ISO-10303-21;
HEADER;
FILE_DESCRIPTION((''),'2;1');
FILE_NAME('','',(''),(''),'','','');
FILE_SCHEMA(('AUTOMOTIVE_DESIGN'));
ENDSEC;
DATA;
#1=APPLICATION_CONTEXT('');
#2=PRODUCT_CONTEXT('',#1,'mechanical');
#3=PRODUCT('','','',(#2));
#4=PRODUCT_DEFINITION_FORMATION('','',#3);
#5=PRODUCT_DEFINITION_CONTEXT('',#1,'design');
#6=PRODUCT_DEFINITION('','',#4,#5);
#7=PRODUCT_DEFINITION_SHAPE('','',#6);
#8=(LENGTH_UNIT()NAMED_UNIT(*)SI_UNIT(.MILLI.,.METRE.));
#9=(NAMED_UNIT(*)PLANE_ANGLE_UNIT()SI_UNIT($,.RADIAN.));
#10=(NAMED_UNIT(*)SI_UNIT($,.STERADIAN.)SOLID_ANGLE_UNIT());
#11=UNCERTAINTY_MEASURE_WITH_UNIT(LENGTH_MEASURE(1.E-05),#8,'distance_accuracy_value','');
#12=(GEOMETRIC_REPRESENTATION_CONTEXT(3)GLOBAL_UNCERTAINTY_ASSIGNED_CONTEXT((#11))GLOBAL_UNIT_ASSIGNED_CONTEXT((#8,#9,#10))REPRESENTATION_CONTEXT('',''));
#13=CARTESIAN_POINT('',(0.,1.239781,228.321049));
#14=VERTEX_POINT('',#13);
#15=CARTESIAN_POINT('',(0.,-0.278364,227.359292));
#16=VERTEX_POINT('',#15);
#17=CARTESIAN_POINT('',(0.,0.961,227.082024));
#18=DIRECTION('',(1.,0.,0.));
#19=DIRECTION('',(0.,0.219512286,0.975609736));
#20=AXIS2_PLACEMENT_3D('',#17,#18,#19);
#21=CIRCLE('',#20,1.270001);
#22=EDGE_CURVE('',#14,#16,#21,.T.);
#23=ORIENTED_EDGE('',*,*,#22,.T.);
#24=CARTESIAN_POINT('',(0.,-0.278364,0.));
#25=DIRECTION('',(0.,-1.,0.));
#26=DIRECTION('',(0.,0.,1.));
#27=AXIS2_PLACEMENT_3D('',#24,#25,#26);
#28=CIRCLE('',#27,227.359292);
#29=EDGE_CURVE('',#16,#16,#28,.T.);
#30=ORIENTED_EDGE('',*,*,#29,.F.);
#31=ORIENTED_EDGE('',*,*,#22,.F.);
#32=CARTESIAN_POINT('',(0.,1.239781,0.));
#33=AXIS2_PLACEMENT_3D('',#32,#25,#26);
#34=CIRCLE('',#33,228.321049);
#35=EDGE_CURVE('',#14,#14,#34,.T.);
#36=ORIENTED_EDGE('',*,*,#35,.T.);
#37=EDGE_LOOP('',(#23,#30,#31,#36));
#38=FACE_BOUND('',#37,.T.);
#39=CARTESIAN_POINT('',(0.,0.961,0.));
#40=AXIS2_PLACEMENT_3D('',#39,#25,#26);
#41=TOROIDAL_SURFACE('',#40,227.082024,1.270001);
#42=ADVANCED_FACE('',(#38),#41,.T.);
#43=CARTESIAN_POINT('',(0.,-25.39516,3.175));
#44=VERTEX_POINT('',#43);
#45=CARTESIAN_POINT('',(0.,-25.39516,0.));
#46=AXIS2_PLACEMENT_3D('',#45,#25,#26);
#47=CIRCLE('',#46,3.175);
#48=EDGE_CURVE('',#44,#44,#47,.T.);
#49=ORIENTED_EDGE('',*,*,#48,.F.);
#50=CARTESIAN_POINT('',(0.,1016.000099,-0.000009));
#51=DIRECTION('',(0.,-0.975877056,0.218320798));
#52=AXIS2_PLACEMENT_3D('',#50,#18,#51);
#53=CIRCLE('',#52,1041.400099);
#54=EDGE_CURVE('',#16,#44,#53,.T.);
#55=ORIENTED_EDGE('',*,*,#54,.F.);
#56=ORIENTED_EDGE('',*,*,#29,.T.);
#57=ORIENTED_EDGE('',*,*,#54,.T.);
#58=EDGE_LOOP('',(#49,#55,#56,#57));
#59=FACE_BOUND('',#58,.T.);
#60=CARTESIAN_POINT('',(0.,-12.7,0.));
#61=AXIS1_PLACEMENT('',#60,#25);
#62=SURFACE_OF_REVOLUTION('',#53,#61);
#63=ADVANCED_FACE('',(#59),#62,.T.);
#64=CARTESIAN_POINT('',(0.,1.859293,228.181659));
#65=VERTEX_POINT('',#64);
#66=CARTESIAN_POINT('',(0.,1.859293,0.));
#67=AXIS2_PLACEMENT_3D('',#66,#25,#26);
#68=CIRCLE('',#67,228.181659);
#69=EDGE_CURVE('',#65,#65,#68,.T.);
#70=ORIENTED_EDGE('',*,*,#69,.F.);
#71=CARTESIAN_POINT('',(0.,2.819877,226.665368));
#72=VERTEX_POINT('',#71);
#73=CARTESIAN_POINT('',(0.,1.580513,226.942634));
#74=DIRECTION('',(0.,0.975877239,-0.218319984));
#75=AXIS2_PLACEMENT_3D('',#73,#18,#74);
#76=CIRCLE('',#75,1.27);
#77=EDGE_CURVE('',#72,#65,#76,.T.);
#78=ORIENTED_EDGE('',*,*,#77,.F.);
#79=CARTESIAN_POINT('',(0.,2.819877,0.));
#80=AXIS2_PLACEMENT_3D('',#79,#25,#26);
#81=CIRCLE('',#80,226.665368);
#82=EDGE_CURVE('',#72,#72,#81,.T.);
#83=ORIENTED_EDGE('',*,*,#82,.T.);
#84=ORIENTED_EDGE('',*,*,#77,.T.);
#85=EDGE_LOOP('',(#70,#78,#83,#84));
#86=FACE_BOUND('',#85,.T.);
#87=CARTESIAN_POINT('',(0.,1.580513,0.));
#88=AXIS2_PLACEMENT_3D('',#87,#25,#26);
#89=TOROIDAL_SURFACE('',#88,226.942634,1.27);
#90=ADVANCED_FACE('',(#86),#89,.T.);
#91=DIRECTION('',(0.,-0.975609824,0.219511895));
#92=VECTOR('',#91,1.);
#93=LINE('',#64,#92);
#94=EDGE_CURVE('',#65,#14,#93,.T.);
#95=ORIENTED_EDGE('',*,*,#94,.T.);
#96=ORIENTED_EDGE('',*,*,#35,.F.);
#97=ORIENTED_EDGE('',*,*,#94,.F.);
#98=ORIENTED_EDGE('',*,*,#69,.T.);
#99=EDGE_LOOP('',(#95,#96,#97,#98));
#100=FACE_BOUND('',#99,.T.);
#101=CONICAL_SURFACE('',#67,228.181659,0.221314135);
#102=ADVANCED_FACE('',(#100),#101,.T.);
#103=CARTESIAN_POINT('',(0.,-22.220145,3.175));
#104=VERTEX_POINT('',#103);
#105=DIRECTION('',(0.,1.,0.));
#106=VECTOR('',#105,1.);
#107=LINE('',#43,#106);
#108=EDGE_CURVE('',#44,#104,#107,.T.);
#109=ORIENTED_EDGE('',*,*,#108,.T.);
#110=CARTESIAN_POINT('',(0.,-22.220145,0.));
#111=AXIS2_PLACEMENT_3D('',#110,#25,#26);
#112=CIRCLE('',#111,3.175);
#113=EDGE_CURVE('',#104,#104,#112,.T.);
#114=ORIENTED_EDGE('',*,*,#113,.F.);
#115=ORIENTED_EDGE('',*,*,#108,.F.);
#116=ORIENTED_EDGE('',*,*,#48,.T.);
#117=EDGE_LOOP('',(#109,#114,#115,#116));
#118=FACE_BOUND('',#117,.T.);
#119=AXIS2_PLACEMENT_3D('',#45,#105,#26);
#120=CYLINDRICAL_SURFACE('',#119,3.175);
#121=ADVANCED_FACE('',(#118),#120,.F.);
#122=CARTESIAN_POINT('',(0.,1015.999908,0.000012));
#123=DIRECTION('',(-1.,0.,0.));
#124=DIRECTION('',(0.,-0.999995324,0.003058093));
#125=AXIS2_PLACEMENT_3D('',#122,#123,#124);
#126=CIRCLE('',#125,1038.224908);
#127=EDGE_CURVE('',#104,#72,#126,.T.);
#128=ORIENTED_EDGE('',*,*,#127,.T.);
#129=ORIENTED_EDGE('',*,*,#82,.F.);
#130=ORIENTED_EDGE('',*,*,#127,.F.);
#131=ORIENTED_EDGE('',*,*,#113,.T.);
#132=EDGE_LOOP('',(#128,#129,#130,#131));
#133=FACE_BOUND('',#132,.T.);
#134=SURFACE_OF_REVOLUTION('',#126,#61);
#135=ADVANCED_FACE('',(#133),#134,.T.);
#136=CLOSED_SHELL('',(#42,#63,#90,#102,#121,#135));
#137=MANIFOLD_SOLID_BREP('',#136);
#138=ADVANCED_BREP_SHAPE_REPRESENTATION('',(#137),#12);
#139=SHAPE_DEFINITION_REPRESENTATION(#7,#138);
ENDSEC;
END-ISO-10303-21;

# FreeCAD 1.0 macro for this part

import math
import FreeCAD as App
import Part
import Sketcher
Q = App.Units.Quantity

doc = App.newDocument("Part")
params = doc.addObject("Spreadsheet::Sheet", "Params")
for row, (alias, value) in enumerate([
    ("sketch1_radius", "0.05 in"),
    ("sketch1_length", "0.025 in"),
    ("revolution_angle", "360 deg"),
], start=1):
    params.set(f"A{row}", alias)
    params.set(f"B{row}", "=" + value)
    params.setAlias(f"B{row}", alias)

body = doc.addObject("PartDesign::Body", "Body")

# Sketch on YZ plane
sketch1 = body.newObject("Sketcher::SketchObject", "Sketch")
sketch1.AttachmentSupport = (doc.getObject("YZ_Plane"), [""])
sketch1.MapMode = "FlatFace"
sketch1.addGeometry(Part.ArcOfCircle(Part.Circle(App.Vector(1, 227.1, 0), App.Vector(0, 0, 1), 1.3), math.radians(77), math.radians(167)), False)
sketch1.addGeometry(Part.ArcOfCircle(Part.Circle(App.Vector(1016, 0, 0), App.Vector(0, 0, 1), 1041.4), math.radians(167.39), math.radians(179.83)), False)
sketch1.addGeometry(Part.LineSegment(App.Vector(-25.4, 3.2, 0), App.Vector(-22.2, 3.2, 0)), False)
sketch1.addGeometry(Part.ArcOfCircle(Part.Circle(App.Vector(1016, 0, 0), App.Vector(0, 0, 1), 1038.2), math.radians(167.39), math.radians(179.82)), False)
sketch1.addGeometry(Part.ArcOfCircle(Part.Circle(App.Vector(1.6, 226.9, 0), App.Vector(0, 0, 1), 1.3), math.radians(-13), math.radians(77)), False)
sketch1.addGeometry(Part.LineSegment(App.Vector(1.9, 228.2, 0), App.Vector(1.2, 228.3, 0)), False)
sketch1.addConstraint(Sketcher.Constraint("Tangent", 0, 2, 1, 1))
sketch1.addConstraint(Sketcher.Constraint("Coincident", 1, 2, 2, 1))
sketch1.addConstraint(Sketcher.Constraint("Coincident", 2, 2, 3, 2))
sketch1.addConstraint(Sketcher.Constraint("Tangent", 3, 1, 4, 1))
sketch1.addConstraint(Sketcher.Constraint("Tangent", 4, 2, 5, 1))
sketch1.addConstraint(Sketcher.Constraint("Tangent", 5, 2, 0, 1))
sketch1.addConstraint(Sketcher.Constraint("Horizontal", 2))
sketch1.addConstraint(Sketcher.Constraint("Equal", 0, 4))
sketch1.addConstraint(Sketcher.Constraint("Radius", 0, Q("0.05 in")))
sketch1.addConstraint(Sketcher.Constraint("Radius", 1, 1041.400099))
sketch1.addConstraint(Sketcher.Constraint("Distance", 5, Q("0.025 in")))
sketch1.addConstraint(Sketcher.Constraint("DistanceY", -1, 1, 2, 2, Q("0.125 in")))
sketch1.addConstraint(Sketcher.Constraint("Radius", 3, 1038.224908))
sketch1.addConstraint(Sketcher.Constraint("DistanceX", -1, 1, 0, 3, 0.961))
sketch1.addConstraint(Sketcher.Constraint("DistanceX", -1, 1, 1, 3, 1016.000099))
sketch1.addConstraint(Sketcher.Constraint("DistanceX", 2, 1, 2, 2, 3.175015))
sketch1.addConstraint(Sketcher.Constraint("DistanceY", -1, 1, 0, 2, 227.359292))
sketch1.addConstraint(Sketcher.Constraint("DistanceY", -1, 1, 4, 2, 228.181659))
sketch1.setExpression("Constraints[8]", "Params.sketch1_radius")
sketch1.setExpression("Constraints[10]", "Params.sketch1_length")
revolution = body.newObject("PartDesign::Revolution", "Revolution")
revolution.Profile = sketch1
revolution.ReferenceAxis = (sketch1, ["H_Axis"])
revolution.setExpression("Angle", "Params.revolution_angle")

doc.recompute()
